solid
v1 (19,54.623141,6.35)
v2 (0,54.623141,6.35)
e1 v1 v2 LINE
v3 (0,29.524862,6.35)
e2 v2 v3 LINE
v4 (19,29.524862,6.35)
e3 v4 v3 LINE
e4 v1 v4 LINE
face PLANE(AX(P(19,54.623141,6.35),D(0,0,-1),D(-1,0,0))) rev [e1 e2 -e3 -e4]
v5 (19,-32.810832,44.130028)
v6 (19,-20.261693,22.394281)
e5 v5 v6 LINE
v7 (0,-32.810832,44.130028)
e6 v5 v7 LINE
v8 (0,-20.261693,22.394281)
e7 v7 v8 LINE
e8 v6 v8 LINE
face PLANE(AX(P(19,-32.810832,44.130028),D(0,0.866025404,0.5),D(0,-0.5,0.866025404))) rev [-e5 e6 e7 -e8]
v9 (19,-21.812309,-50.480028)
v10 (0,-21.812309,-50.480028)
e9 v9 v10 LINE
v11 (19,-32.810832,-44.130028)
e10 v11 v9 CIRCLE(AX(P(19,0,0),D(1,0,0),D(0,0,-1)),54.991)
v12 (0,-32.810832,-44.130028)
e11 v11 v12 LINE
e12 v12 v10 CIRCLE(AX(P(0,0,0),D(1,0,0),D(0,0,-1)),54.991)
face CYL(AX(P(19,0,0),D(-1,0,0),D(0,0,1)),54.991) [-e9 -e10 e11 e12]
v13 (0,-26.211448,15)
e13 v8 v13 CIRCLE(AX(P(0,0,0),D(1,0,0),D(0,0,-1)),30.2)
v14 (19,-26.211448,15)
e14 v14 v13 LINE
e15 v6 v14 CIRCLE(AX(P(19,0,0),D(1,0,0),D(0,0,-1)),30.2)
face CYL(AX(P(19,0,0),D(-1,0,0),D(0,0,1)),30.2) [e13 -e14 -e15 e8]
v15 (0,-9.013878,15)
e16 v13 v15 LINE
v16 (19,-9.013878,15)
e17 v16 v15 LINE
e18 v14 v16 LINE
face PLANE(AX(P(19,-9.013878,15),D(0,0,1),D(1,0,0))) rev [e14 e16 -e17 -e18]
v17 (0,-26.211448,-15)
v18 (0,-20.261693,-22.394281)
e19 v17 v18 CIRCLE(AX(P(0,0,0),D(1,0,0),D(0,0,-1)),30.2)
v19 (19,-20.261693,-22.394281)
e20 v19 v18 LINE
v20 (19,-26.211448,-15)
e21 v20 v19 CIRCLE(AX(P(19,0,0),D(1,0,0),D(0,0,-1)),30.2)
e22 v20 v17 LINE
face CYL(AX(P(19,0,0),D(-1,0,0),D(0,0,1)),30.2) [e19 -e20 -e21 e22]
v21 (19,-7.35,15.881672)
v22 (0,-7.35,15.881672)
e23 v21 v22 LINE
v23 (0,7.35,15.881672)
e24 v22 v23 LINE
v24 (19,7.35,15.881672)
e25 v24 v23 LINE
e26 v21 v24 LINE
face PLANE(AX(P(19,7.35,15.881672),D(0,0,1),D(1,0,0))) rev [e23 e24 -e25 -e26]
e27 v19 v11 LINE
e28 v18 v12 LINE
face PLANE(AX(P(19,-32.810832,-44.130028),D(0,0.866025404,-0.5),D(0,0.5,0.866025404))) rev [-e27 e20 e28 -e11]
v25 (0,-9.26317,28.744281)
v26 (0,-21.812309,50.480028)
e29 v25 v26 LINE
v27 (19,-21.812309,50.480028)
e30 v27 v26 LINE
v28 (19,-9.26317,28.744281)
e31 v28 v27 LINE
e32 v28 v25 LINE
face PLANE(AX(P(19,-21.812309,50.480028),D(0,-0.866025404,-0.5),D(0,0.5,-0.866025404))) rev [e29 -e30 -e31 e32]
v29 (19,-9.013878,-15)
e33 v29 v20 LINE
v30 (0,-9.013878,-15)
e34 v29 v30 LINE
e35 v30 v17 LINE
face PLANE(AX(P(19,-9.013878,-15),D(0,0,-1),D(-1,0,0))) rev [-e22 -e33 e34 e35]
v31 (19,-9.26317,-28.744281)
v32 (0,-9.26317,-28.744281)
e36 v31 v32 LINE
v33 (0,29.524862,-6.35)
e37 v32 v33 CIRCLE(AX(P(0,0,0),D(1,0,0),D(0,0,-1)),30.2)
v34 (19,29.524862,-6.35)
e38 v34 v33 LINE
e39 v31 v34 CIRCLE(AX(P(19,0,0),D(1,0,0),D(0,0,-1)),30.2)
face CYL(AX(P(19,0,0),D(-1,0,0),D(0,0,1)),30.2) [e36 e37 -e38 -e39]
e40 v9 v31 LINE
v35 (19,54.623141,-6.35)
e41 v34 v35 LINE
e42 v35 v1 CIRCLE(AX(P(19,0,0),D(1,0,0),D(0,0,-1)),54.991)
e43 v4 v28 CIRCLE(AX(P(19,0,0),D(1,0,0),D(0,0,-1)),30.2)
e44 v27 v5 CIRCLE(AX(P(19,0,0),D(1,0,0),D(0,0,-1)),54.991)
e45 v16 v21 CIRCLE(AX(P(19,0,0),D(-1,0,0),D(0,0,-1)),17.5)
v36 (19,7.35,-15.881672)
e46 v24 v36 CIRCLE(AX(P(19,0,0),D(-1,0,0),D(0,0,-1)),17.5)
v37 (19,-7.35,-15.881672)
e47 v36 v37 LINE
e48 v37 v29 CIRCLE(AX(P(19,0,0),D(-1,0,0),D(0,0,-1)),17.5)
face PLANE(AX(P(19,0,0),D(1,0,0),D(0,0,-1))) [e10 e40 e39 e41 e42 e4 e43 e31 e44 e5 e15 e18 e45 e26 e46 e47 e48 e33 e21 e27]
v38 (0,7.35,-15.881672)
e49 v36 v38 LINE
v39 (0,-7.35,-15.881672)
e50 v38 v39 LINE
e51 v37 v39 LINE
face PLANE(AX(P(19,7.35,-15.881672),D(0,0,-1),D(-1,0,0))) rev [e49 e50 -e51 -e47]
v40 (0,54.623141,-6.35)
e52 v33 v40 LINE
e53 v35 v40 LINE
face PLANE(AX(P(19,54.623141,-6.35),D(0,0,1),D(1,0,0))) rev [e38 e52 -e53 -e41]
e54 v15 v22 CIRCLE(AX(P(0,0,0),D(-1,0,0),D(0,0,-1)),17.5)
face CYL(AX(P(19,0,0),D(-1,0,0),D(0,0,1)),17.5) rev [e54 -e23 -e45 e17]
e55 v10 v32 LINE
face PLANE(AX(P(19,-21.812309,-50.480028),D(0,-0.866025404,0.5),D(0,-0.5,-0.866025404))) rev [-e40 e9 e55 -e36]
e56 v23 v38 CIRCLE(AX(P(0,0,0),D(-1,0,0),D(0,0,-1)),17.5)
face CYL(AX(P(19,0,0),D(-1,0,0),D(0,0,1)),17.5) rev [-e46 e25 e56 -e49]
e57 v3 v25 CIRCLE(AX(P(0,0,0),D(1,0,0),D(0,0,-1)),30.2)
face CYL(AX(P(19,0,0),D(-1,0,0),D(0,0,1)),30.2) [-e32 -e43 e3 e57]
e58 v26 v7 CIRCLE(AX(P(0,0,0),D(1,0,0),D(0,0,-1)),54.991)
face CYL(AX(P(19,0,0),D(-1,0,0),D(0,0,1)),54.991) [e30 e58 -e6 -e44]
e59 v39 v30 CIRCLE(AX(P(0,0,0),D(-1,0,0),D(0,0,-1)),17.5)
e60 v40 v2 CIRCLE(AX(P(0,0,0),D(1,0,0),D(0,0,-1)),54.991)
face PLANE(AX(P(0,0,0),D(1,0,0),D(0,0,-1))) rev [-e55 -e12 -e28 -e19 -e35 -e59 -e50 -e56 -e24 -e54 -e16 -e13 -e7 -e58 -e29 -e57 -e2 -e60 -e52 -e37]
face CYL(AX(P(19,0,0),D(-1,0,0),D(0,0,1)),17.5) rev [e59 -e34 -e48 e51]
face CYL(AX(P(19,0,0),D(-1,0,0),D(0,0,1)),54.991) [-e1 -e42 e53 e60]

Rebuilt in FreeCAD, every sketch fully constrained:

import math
import FreeCAD as App
import Part
import Sketcher
Q = App.Units.Quantity

doc = App.newDocument("Part")
body = doc.addObject("PartDesign::Body", "Body")

sketch1 = body.newObject("Sketcher::SketchObject", "Sketch")
sketch1.AttachmentSupport = (doc.getObject("YZ_Plane"), [""])
sketch1.MapMode = "FlatFace"
sketch1.addGeometry(Part.LineSegment(App.Vector(7.3, -15.9, 0), App.Vector(-7.3, -15.9, 0)), False)
sketch1.addGeometry(Part.ArcOfCircle(Part.Circle(App.Vector(0, 0, 0), App.Vector(0, 0, 1), 17.5), math.radians(-121), math.radians(-114.83)), False)
sketch1.addGeometry(Part.LineSegment(App.Vector(-9, -15, 0), App.Vector(-26.2, -15, 0)), False)
sketch1.addGeometry(Part.ArcOfCircle(Part.Circle(App.Vector(0, 0, 0), App.Vector(0, 0, 1), 30.2), math.radians(-150.22), math.radians(-132.14)), False)
sketch1.addGeometry(Part.LineSegment(App.Vector(-20.3, -22.4, 0), App.Vector(-32.8, -44.1, 0)), False)
sketch1.addGeometry(Part.ArcOfCircle(Part.Circle(App.Vector(0, 0, 0), App.Vector(0, 0, 1), 55), math.radians(-126.63), math.radians(-113.37)), False)
sketch1.addGeometry(Part.LineSegment(App.Vector(-21.8, -50.5, 0), App.Vector(-9.3, -28.7, 0)), False)
sketch1.addGeometry(Part.ArcOfCircle(Part.Circle(App.Vector(0, 0, 0), App.Vector(0, 0, 1), 30.2), math.radians(-108), math.radians(-12)), False)
sketch1.addGeometry(Part.LineSegment(App.Vector(29.5, -6.3, 0), App.Vector(54.6, -6.3, 0)), False)
sketch1.addGeometry(Part.ArcOfCircle(Part.Circle(App.Vector(0, 0, 0), App.Vector(0, 0, 1), 55), math.radians(-6.63), math.radians(6.63)), False)
sketch1.addGeometry(Part.LineSegment(App.Vector(54.6, 6.3, 0), App.Vector(29.5, 6.3, 0)), False)
sketch1.addGeometry(Part.ArcOfCircle(Part.Circle(App.Vector(0, 0, 0), App.Vector(0, 0, 1), 30.2), math.radians(12), math.radians(108)), False)
sketch1.addGeometry(Part.LineSegment(App.Vector(-9.3, 28.7, 0), App.Vector(-21.8, 50.5, 0)), False)
sketch1.addGeometry(Part.ArcOfCircle(Part.Circle(App.Vector(0, 0, 0), App.Vector(0, 0, 1), 55), math.radians(113.37), math.radians(126.63)), False)
sketch1.addGeometry(Part.LineSegment(App.Vector(-32.8, 44.1, 0), App.Vector(-20.3, 22.4, 0)), False)
sketch1.addGeometry(Part.ArcOfCircle(Part.Circle(App.Vector(0, 0, 0), App.Vector(0, 0, 1), 30.2), math.radians(132.14), math.radians(150.22)), False)
sketch1.addGeometry(Part.LineSegment(App.Vector(-26.2, 15, 0), App.Vector(-9, 15, 0)), False)
sketch1.addGeometry(Part.ArcOfCircle(Part.Circle(App.Vector(0, 0, 0), App.Vector(0, 0, 1), 17.5), math.radians(114.83), math.radians(121)), False)
sketch1.addGeometry(Part.LineSegment(App.Vector(-7.3, 15.9, 0), App.Vector(7.3, 15.9, 0)), False)
sketch1.addGeometry(Part.ArcOfCircle(Part.Circle(App.Vector(0, 0, 0), App.Vector(0, 0, 1), 17.5), math.radians(-65), math.radians(65)), False)
sketch1.addConstraint(Sketcher.Constraint("Coincident", 0, 2, 1, 2))
sketch1.addConstraint(Sketcher.Constraint("Coincident", 1, 1, 2, 1))
sketch1.addConstraint(Sketcher.Constraint("Coincident", 2, 2, 3, 1))
sketch1.addConstraint(Sketcher.Constraint("Coincident", 3, 2, 4, 1))
sketch1.addConstraint(Sketcher.Constraint("Coincident", 4, 2, 5, 1))
sketch1.addConstraint(Sketcher.Constraint("Coincident", 5, 2, 6, 1))
sketch1.addConstraint(Sketcher.Constraint("Coincident", 6, 2, 7, 1))
sketch1.addConstraint(Sketcher.Constraint("Coincident", 7, 2, 8, 1))
sketch1.addConstraint(Sketcher.Constraint("Coincident", 8, 2, 9, 1))
sketch1.addConstraint(Sketcher.Constraint("Coincident", 9, 2, 10, 1))
sketch1.addConstraint(Sketcher.Constraint("Coincident", 10, 2, 11, 1))
sketch1.addConstraint(Sketcher.Constraint("Coincident", 11, 2, 12, 1))
sketch1.addConstraint(Sketcher.Constraint("Coincident", 12, 2, 13, 1))
sketch1.addConstraint(Sketcher.Constraint("Coincident", 13, 2, 14, 1))
sketch1.addConstraint(Sketcher.Constraint("Coincident", 14, 2, 15, 1))
sketch1.addConstraint(Sketcher.Constraint("Coincident", 15, 2, 16, 1))
sketch1.addConstraint(Sketcher.Constraint("Coincident", 16, 2, 17, 2))
sketch1.addConstraint(Sketcher.Constraint("Coincident", 17, 1, 18, 1))
sketch1.addConstraint(Sketcher.Constraint("Coincident", 18, 2, 19, 2))
sketch1.addConstraint(Sketcher.Constraint("Coincident", 19, 1, 0, 1))
sketch1.addConstraint(Sketcher.Constraint("Horizontal", 0))
sketch1.addConstraint(Sketcher.Constraint("Horizontal", 2))
sketch1.addConstraint(Sketcher.Constraint("Horizontal", 8))
sketch1.addConstraint(Sketcher.Constraint("Horizontal", 10))
sketch1.addConstraint(Sketcher.Constraint("Horizontal", 16))
sketch1.addConstraint(Sketcher.Constraint("Horizontal", 18))
sketch1.addConstraint(Sketcher.Constraint("Coincident", 1, 3, -1, 1))
sketch1.addConstraint(Sketcher.Constraint("Coincident", 3, 3, -1, 1))
sketch1.addConstraint(Sketcher.Constraint("Coincident", 5, 3, -1, 1))
sketch1.addConstraint(Sketcher.Constraint("Coincident", 7, 3, -1, 1))
sketch1.addConstraint(Sketcher.Constraint("Coincident", 9, 3, -1, 1))
sketch1.addConstraint(Sketcher.Constraint("Coincident", 11, 3, -1, 1))
sketch1.addConstraint(Sketcher.Constraint("Coincident", 13, 3, -1, 1))
sketch1.addConstraint(Sketcher.Constraint("Coincident", 15, 3, -1, 1))
sketch1.addConstraint(Sketcher.Constraint("Coincident", 17, 3, -1, 1))
sketch1.addConstraint(Sketcher.Constraint("Coincident", 19, 3, -1, 1))
sketch1.addConstraint(Sketcher.Constraint("Equal", 3, 7))
sketch1.addConstraint(Sketcher.Constraint("Equal", 5, 9))
sketch1.addConstraint(Sketcher.Constraint("Equal", 7, 11))
sketch1.addConstraint(Sketcher.Constraint("Equal", 9, 13))
sketch1.addConstraint(Sketcher.Constraint("Equal", 11, 15))
sketch1.addConstraint(Sketcher.Constraint("Equal", 1, 17))
sketch1.addConstraint(Sketcher.Constraint("Equal", 17, 19))
sketch1.addConstraint(Sketcher.Constraint("Parallel", 4, 6))
sketch1.addConstraint(Sketcher.Constraint("Parallel", 12, 14))
sketch1.addConstraint(Sketcher.Constraint("Vertical", 8, 2, 9, 2))
sketch1.addConstraint(Sketcher.Constraint("Vertical", 6, 2, 11, 2))
sketch1.addConstraint(Sketcher.Constraint("Vertical", 5, 2, 12, 2))
sketch1.addConstraint(Sketcher.Constraint("Vertical", 4, 2, 13, 2))
sketch1.addConstraint(Sketcher.Constraint("Vertical", 2, 2, 15, 2))
sketch1.addConstraint(Sketcher.Constraint("Vertical", 0, 2, 17, 1))
sketch1.addConstraint(Sketcher.Constraint("Equal", 4, 6))
sketch1.addConstraint(Sketcher.Constraint("Radius", 1, 17.5))
sketch1.addConstraint(Sketcher.Constraint("Radius", 3, 30.2))
sketch1.addConstraint(Sketcher.Constraint("Angle", 4, Q("-120 deg")))
sketch1.addConstraint(Sketcher.Constraint("DistanceX", 0, 2, 0, 1, 14.7))
sketch1.addConstraint(Sketcher.Constraint("DistanceY", 1, 1, -1, 1, 15.0))
sketch1.addConstraint(Sketcher.Constraint("Radius", 5, 54.991))
sketch1.addConstraint(Sketcher.Constraint("DistanceY", 8, 2, 9, 2, 12.7))
sketch1.addConstraint(Sketcher.Constraint("DistanceY", 5, 2, 4, 2, 6.35))
pad1 = body.newObject("PartDesign::Pad", "Pad")
pad1.Profile = sketch1
pad1.Length = 19

doc.recompute()
